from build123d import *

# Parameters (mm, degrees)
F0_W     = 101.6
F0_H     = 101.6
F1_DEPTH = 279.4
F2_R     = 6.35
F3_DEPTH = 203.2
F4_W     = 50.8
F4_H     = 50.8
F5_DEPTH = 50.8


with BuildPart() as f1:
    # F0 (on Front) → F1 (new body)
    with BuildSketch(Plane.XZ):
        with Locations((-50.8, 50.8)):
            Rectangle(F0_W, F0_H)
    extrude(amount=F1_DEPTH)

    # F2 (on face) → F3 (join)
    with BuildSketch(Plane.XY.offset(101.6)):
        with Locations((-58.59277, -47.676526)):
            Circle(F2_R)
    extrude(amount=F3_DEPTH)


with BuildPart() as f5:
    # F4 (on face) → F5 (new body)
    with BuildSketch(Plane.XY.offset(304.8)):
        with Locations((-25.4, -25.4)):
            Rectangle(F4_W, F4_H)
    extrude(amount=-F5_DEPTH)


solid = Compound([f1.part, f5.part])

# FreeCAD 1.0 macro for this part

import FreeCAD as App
import Part
import Sketcher
Q = App.Units.Quantity


def add_polygon(sketch, points):
    """Adds a closed chain of lines whose ends are joined by coincident constraints."""
    first, n = sketch.GeometryCount, len(points)
    for a, b in zip(points, points[1:] + points[:1]):
        sketch.addGeometry(Part.LineSegment(App.Vector(*a, 0), App.Vector(*b, 0)), False)
    for i in range(n):
        sketch.addConstraint(Sketcher.Constraint("Coincident", first + i, 2, first + (i + 1) % n, 1))

doc = App.newDocument("Part")
params = doc.addObject("Spreadsheet::Sheet", "Params")
for row, (alias, value) in enumerate([
    ("sketch1_width", "4 in"),
    ("pad1_length", "11 in"),
    ("sketch2_diameter", "0.5 in"),
    ("pad2_length", "8 in"),
    ("sketch3_width", "2 in"),
    ("pad3_length", "2 in"),
], start=1):
    params.set(f"A{row}", alias)
    params.set(f"B{row}", "=" + value)
    params.setAlias(f"B{row}", alias)

body = doc.addObject("PartDesign::Body", "Body")

sketch1 = doc.addObject("Sketcher::SketchObject", "Sketch")
body.addObject(sketch1)
sketch1.AttachmentSupport = (doc.XZ_Plane, [""])
sketch1.MapMode = "FlatFace"
add_polygon(sketch1, [(-102, 102), (-102, 0), (0, 0), (0, 102)])
sketch1.addConstraint(Sketcher.Constraint("Vertical", 0))
sketch1.addConstraint(Sketcher.Constraint("Horizontal", 1))
sketch1.addConstraint(Sketcher.Constraint("Vertical", 2))
sketch1.addConstraint(Sketcher.Constraint("Horizontal", 3))
sketch1.addConstraint(Sketcher.Constraint("Coincident", 1, 2, -1, 1))
sketch1.addConstraint(Sketcher.Constraint("Equal", 3, 0))
sketch1.addConstraint(Sketcher.Constraint("DistanceX", 1, 1, 1, 2, Q("4 in")))
sketch1.setExpression("Constraints[10]", "Params.sketch1_width")
pad1 = doc.addObject("PartDesign::Pad", "Pad")
body.addObject(pad1)
pad1.Profile = sketch1
pad1.setExpression("Length", "Params.pad1_length")

sketch2 = doc.addObject("Sketcher::SketchObject", "Sketch001")
body.addObject(sketch2)
sketch2.AttachmentSupport = (doc.XY_Plane, [""])
sketch2.MapMode = "FlatFace"
sketch2.AttachmentOffset = App.Placement(App.Vector(0, 0, 4 * 25.4), App.Rotation())
sketch2.addGeometry(Part.Circle(App.Vector(-59, -48, 0), App.Vector(0, 0, 1), 6), False)
sketch2.addConstraint(Sketcher.Constraint("Diameter", 0, Q("0.5 in")))
sketch2.addConstraint(Sketcher.Constraint("DistanceX", 0, 3, -1, 1, Q("58.59277 mm")))
sketch2.addConstraint(Sketcher.Constraint("DistanceY", 0, 3, -1, 1, Q("47.676526 mm")))
sketch2.setExpression("Constraints[0]", "Params.sketch2_diameter")
pad2 = doc.addObject("PartDesign::Pad", "Pad001")
body.addObject(pad2)
pad2.Profile = sketch2
pad2.setExpression("Length", "Params.pad2_length")
body2 = doc.addObject("PartDesign::Body", "Body001")

sketch3 = doc.addObject("Sketcher::SketchObject", "Sketch002")
body2.addObject(sketch3)
sketch3.AttachmentSupport = (doc.getObject("XY_Plane001"), [""])
sketch3.MapMode = "FlatFace"
sketch3.AttachmentOffset = App.Placement(App.Vector(0, 0, 12 * 25.4), App.Rotation())
add_polygon(sketch3, [(-51, 0), (-51, -51), (0, -51), (0, 0)])
sketch3.addConstraint(Sketcher.Constraint("Vertical", 0))
sketch3.addConstraint(Sketcher.Constraint("Horizontal", 1))
sketch3.addConstraint(Sketcher.Constraint("Vertical", 2))
sketch3.addConstraint(Sketcher.Constraint("Horizontal", 3))
sketch3.addConstraint(Sketcher.Constraint("Coincident", 2, 2, -1, 1))
sketch3.addConstraint(Sketcher.Constraint("Equal", 3, 0))
sketch3.addConstraint(Sketcher.Constraint("DistanceX", 1, 1, 1, 2, Q("2 in")))
sketch3.setExpression("Constraints[10]", "Params.sketch3_width")
pad3 = doc.addObject("PartDesign::Pad", "Pad002")
body2.addObject(pad3)
pad3.Profile = sketch3
pad3.setExpression("Length", "Params.pad3_length")
pad3.Reversed = True

doc.recompute()
